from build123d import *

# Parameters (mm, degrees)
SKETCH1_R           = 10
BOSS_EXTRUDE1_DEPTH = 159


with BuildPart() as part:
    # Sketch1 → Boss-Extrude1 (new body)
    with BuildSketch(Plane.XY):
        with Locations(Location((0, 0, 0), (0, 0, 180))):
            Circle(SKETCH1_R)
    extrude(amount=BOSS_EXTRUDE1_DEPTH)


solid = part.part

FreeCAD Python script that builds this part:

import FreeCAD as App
import Part
import Sketcher
from FreeCAD import Vector

doc = App.newDocument("Part")
body = doc.addObject("PartDesign::Body", "Body")

# Sketch on XY plane
sketch1 = body.newObject("Sketcher::SketchObject", "Sketch")
sketch1.AttachmentSupport = (doc.getObject("XY_Plane"), [""])
sketch1.MapMode = "FlatFace"
sketch1.addGeometry(Part.Circle(Vector(0, 0, 0), Vector(0, 0, 1), 10), False)
sketch1.addConstraint(Sketcher.Constraint("Coincident", 0, 3, -1, 1))
sketch1.addConstraint(Sketcher.Constraint("Diameter", 0, 20.0))
pad1 = body.newObject("PartDesign::Pad", "Pad")
pad1.Profile = sketch1
pad1.Length = 159

doc.recompute()
